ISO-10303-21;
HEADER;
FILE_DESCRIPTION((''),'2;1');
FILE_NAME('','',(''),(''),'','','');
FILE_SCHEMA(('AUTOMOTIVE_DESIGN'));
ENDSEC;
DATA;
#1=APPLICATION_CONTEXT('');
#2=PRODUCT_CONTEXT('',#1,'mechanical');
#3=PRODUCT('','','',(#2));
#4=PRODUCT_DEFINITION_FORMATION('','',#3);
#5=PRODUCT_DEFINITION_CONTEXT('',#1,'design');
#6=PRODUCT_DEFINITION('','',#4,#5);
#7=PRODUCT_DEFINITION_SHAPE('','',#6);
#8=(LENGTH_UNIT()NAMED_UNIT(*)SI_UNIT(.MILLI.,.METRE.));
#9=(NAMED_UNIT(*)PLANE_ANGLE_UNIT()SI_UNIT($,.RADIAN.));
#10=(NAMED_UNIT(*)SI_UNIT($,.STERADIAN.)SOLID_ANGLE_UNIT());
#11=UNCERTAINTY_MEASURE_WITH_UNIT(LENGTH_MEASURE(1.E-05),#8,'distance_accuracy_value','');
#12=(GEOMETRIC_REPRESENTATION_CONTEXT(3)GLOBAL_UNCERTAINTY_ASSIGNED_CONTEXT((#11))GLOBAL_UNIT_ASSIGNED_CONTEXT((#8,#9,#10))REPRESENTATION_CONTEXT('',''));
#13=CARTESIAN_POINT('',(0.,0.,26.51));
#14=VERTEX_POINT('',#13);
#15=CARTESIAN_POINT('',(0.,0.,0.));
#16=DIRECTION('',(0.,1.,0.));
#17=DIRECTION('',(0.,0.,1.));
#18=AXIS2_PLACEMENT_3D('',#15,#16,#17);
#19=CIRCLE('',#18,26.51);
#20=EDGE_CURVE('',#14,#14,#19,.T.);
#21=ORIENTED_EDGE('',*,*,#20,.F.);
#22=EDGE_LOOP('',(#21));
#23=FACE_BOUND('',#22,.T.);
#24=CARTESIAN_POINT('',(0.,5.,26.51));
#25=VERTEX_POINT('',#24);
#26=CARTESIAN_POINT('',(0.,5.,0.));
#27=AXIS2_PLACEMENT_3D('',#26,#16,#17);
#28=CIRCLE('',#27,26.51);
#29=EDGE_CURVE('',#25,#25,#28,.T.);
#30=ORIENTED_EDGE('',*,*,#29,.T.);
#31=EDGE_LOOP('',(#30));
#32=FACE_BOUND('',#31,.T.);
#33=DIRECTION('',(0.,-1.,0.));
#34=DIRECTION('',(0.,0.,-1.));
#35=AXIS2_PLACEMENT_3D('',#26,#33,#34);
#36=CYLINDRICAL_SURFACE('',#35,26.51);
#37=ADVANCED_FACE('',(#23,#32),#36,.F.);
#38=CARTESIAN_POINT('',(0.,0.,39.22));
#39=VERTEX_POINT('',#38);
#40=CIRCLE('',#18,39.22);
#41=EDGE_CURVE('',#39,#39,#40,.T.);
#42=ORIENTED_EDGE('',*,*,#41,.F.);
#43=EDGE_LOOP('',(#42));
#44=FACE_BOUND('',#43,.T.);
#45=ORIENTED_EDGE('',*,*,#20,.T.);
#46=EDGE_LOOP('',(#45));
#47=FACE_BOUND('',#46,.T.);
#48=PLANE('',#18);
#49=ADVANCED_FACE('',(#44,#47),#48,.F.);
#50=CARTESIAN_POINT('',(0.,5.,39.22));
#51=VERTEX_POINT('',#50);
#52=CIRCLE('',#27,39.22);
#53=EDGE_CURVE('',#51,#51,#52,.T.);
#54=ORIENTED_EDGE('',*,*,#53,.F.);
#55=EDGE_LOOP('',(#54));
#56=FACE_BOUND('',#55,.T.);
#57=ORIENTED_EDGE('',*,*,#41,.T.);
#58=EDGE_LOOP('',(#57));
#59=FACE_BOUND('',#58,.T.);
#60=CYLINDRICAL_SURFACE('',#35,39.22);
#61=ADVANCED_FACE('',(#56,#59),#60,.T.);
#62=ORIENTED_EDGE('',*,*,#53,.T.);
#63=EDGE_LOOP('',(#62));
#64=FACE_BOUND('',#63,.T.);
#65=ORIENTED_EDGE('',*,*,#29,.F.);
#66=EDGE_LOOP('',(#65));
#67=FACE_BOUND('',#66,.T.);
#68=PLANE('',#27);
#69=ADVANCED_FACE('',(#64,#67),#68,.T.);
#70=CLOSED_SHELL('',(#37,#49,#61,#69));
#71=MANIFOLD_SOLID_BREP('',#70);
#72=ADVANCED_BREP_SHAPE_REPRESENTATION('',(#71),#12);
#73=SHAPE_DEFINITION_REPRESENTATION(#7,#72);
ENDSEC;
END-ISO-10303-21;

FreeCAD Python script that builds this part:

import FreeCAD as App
import Part
import Sketcher

V = App.Vector
Q = App.Units.Quantity

doc = App.newDocument("Part")
params = doc.addObject("Spreadsheet::Sheet", "Params")
for row, (alias, value) in enumerate([
    ("sketch1_diameter", "78.44 mm"),
    ("sketch1_diameter2", "53.02 mm"),
    ("pad1_length", "5 mm"),
], start=1):
    params.set(f"A{row}", alias)
    params.set(f"B{row}", "=" + value)
    params.setAlias(f"B{row}", alias)

body = doc.addObject("PartDesign::Body", "Body")

# Sketch on XZ plane
sketch1 = body.newObject("Sketcher::SketchObject", "Sketch")
sketch1.AttachmentSupport = (doc.getObject("XZ_Plane"), [""])
sketch1.MapMode = "FlatFace"
sketch1.addGeometry([
    Part.Circle(V(0, 0, 0), V(0, 0, 1), 39.22),
    Part.Circle(V(0, 0, 0), V(0, 0, 1), 26.51),
], False)
sketch1.addConstraint([
    Sketcher.Constraint("Coincident", 0, 3, -1, 1),
    Sketcher.Constraint("Coincident", 1, 3, -1, 1),
    Sketcher.Constraint("Diameter", 0, Q("78.44 mm")),
    Sketcher.Constraint("Diameter", 1, Q("53.02 mm")),
])
sketch1.setExpression("Constraints[2]", "Params.sketch1_diameter")
sketch1.setExpression("Constraints[3]", "Params.sketch1_diameter2")
pad1 = body.newObject("PartDesign::Pad", "Pad")
pad1.Profile = sketch1
pad1.setExpression("Length", "Params.pad1_length")
pad1.Reversed = True

doc.recompute()
